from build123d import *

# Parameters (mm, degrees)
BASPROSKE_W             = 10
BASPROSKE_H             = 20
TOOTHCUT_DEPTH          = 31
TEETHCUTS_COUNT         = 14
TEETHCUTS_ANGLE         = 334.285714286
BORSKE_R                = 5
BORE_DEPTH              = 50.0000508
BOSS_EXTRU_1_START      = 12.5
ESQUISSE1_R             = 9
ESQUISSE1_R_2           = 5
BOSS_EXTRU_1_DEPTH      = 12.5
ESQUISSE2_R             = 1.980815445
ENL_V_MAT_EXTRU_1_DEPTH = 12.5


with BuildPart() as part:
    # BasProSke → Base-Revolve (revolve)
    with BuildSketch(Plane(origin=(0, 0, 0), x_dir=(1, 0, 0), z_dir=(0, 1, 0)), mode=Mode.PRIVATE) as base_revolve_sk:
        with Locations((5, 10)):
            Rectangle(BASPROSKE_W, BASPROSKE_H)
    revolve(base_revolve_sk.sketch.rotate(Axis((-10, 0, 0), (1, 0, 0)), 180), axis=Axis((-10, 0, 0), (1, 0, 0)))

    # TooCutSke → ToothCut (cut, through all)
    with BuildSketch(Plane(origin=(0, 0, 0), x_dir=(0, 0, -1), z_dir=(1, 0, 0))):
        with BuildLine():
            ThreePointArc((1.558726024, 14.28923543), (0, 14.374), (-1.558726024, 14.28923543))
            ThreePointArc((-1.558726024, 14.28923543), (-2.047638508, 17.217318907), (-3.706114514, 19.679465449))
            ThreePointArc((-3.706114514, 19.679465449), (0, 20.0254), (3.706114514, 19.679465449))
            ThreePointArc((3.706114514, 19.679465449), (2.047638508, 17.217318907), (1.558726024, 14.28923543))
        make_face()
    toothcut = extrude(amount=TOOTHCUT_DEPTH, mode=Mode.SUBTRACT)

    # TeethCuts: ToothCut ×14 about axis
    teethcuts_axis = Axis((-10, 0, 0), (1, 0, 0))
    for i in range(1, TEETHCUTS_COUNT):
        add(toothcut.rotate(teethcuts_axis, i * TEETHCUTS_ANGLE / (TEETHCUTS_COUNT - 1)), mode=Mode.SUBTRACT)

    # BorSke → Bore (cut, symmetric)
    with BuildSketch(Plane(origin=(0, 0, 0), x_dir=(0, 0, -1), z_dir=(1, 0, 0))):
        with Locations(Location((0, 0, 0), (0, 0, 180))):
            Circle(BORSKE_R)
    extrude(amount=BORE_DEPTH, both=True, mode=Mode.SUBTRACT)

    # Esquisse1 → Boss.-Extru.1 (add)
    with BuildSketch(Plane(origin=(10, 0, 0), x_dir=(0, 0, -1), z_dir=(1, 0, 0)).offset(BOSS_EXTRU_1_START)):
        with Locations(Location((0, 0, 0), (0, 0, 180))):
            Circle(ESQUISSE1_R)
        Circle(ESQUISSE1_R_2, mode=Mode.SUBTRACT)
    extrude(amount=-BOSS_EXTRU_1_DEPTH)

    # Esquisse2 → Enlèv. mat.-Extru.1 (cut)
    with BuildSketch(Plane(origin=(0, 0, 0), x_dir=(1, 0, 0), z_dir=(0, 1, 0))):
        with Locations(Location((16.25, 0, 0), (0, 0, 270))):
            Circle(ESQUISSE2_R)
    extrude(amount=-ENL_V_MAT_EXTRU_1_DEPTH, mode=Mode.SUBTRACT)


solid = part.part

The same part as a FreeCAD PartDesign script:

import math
import FreeCAD as App
import Part
import Sketcher
from FreeCAD import Vector
Q = App.Units.Quantity

doc = App.newDocument("Part")
params = doc.addObject("Spreadsheet::Sheet", "Params")
for row, (alias, value) in enumerate([
    ("sketch1_width", "10 mm"),
    ("sketch1_height", "20 mm"),
    ("revolution_angle", "360 deg"),
    ("sketch2_radius", "7 mm"),
    ("sketch3_diameter", "10 mm"),
    ("pocket2_length", "100.000102 mm"),
    ("sketch4_diameter", "18 mm"),
    ("sketch4_diameter2", "10 mm"),
    ("pad1_length", "12.5 mm"),
    ("pocket3_length", "12.5 mm"),
], start=1):
    params.set(f"A{row}", alias)
    params.set(f"B{row}", "=" + value)
    params.setAlias(f"B{row}", alias)

body = doc.addObject("PartDesign::Body", "Body")

sketch1 = body.newObject("Sketcher::SketchObject", "Sketch")
sketch1.AttachmentSupport = (doc.getObject("XZ_Plane"), [""])
sketch1.MapMode = "FlatFace"
sketch1.addGeometry(Part.LineSegment(Vector(0, -20, 0), Vector(0, 0, 0)), False)
sketch1.addGeometry(Part.LineSegment(Vector(0, 0, 0), Vector(10, 0, 0)), False)
sketch1.addGeometry(Part.LineSegment(Vector(10, 0, 0), Vector(10, -20, 0)), False)
sketch1.addGeometry(Part.LineSegment(Vector(10, -20, 0), Vector(0, -20, 0)), False)
sketch1.addConstraint(Sketcher.Constraint("Coincident", 0, 2, 1, 1))
sketch1.addConstraint(Sketcher.Constraint("Coincident", 1, 2, 2, 1))
sketch1.addConstraint(Sketcher.Constraint("Coincident", 2, 2, 3, 1))
sketch1.addConstraint(Sketcher.Constraint("Coincident", 3, 2, 0, 1))
sketch1.addConstraint(Sketcher.Constraint("Vertical", 0))
sketch1.addConstraint(Sketcher.Constraint("Horizontal", 1))
sketch1.addConstraint(Sketcher.Constraint("Vertical", 2))
sketch1.addConstraint(Sketcher.Constraint("Horizontal", 3))
sketch1.addConstraint(Sketcher.Constraint("Coincident", 0, 2, -1, 1))
sketch1.addConstraint(Sketcher.Constraint("DistanceX", 1, 1, 1, 2, Q("10 mm")))
sketch1.addConstraint(Sketcher.Constraint("DistanceY", 0, 1, 0, 2, Q("20 mm")))
sketch1.setExpression("Constraints[9]", "Params.sketch1_width")
sketch1.setExpression("Constraints[10]", "Params.sketch1_height")
revolution = body.newObject("PartDesign::Revolution", "Revolution")
revolution.Profile = sketch1
revolution.ReferenceAxis = (sketch1, ["H_Axis"])
revolution.setExpression("Angle", "Params.revolution_angle")

sketch2 = body.newObject("Sketcher::SketchObject", "Sketch001")
sketch2.AttachmentSupport = (doc.getObject("YZ_Plane"), [""])
sketch2.MapMode = "FlatFace"
sketch2.addGeometry(Part.ArcOfCircle(Part.Circle(Vector(0, 0, 0), Vector(0, 0, 1), 14.4), math.radians(-6.23), math.radians(6.23)), False)
sketch2.addGeometry(Part.ArcOfCircle(Part.Circle(Vector(14.6, -8.6, 0), Vector(0, 0, 1), 7), math.radians(44), math.radians(93)), False)
sketch2.addGeometry(Part.ArcOfCircle(Part.Circle(Vector(0, 0, 0), Vector(0, 0, 1), 20), math.radians(-11), math.radians(11)), False)
sketch2.addGeometry(Part.ArcOfCircle(Part.Circle(Vector(14.6, 8.6, 0), Vector(0, 0, 1), 7), math.radians(-93), math.radians(-44)), False)
sketch2.addConstraint(Sketcher.Constraint("Coincident", 0, 1, 1, 2))
sketch2.addConstraint(Sketcher.Constraint("Coincident", 1, 1, 2, 1))
sketch2.addConstraint(Sketcher.Constraint("Coincident", 2, 2, 3, 2))
sketch2.addConstraint(Sketcher.Constraint("Coincident", 3, 1, 0, 2))
sketch2.addConstraint(Sketcher.Constraint("Coincident", 0, 3, -1, 1))
sketch2.addConstraint(Sketcher.Constraint("Coincident", 2, 3, -1, 1))
sketch2.addConstraint(Sketcher.Constraint("Equal", 1, 3))
sketch2.addConstraint(Sketcher.Constraint("Symmetric", 1, 3, 3, 3, -1))
sketch2.addConstraint(Sketcher.Constraint("Radius", 1, Q("7 mm")))
sketch2.addConstraint(Sketcher.Constraint("Radius", 0, Q("14.374 mm")))
sketch2.addConstraint(Sketcher.Constraint("Radius", 2, Q("20.0254 mm")))
sketch2.addConstraint(Sketcher.Constraint("DistanceX", -1, 1, 1, 3, Q("14.626639 mm")))
sketch2.addConstraint(Sketcher.Constraint("DistanceY", 1, 3, -1, 1, Q("8.55059 mm")))
sketch2.setExpression("Constraints[8]", "Params.sketch2_radius")
pocket1 = body.newObject("PartDesign::Pocket", "Pocket")
pocket1.Profile = sketch2
pocket1.Type = "ThroughAll"
pocket1.Reversed = True
doc.recompute()

polarpattern = body.newObject("PartDesign::PolarPattern", "PolarPattern")
polarpattern.Originals = [pocket1]
polarpattern.Axis = (doc.getObject("X_Axis"), [""])
polarpattern.Angle = 360
polarpattern.Occurrences = 14
body.Tip = polarpattern

sketch3 = body.newObject("Sketcher::SketchObject", "Sketch002")
sketch3.AttachmentSupport = (doc.getObject("YZ_Plane"), [""])
sketch3.MapMode = "FlatFace"
sketch3.addGeometry(Part.Circle(Vector(0, 0, 0), Vector(0, 0, 1), 5), False)
sketch3.addConstraint(Sketcher.Constraint("Coincident", 0, 3, -1, 1))
sketch3.addConstraint(Sketcher.Constraint("Diameter", 0, Q("10 mm")))
sketch3.setExpression("Constraints[1]", "Params.sketch3_diameter")
pocket2 = body.newObject("PartDesign::Pocket", "Pocket001")
pocket2.Profile = sketch3
pocket2.setExpression("Length", "Params.pocket2_length")
pocket2.Midplane = True

sketch4 = body.newObject("Sketcher::SketchObject", "Sketch003")
sketch4.AttachmentSupport = (doc.getObject("YZ_Plane"), [""])
sketch4.MapMode = "FlatFace"
sketch4.AttachmentOffset = App.Placement(Vector(0, 0, 22.5), App.Rotation())
sketch4.addGeometry(Part.Circle(Vector(0, 0, 0), Vector(0, 0, 1), 9), False)
sketch4.addGeometry(Part.Circle(Vector(0, 0, 0), Vector(0, 0, 1), 5), False)
sketch4.addConstraint(Sketcher.Constraint("Coincident", 0, 3, -1, 1))
sketch4.addConstraint(Sketcher.Constraint("Coincident", 1, 3, -1, 1))
sketch4.addConstraint(Sketcher.Constraint("Diameter", 0, Q("18 mm")))
sketch4.addConstraint(Sketcher.Constraint("Diameter", 1, Q("10 mm")))
sketch4.setExpression("Constraints[2]", "Params.sketch4_diameter")
sketch4.setExpression("Constraints[3]", "Params.sketch4_diameter2")
pad1 = body.newObject("PartDesign::Pad", "Pad")
pad1.Profile = sketch4
pad1.setExpression("Length", "Params.pad1_length")
pad1.Reversed = True

sketch5 = body.newObject("Sketcher::SketchObject", "Sketch004")
sketch5.AttachmentSupport = (doc.getObject("XZ_Plane"), [""])
sketch5.MapMode = "FlatFace"
sketch5.addGeometry(Part.Circle(Vector(16.2, 0, 0), Vector(0, 0, 1), 2), False)
sketch5.addConstraint(Sketcher.Constraint("PointOnObject", 0, 3, -1))
sketch5.addConstraint(Sketcher.Constraint("Diameter", 0, Q("3.961631 mm")))
sketch5.addConstraint(Sketcher.Constraint("DistanceX", -1, 1, 0, 3, Q("16.25 mm")))
pocket3 = body.newObject("PartDesign::Pocket", "Pocket002")
pocket3.Profile = sketch5
pocket3.setExpression("Length", "Params.pocket3_length")
pocket3.Reversed = True

doc.recompute()
